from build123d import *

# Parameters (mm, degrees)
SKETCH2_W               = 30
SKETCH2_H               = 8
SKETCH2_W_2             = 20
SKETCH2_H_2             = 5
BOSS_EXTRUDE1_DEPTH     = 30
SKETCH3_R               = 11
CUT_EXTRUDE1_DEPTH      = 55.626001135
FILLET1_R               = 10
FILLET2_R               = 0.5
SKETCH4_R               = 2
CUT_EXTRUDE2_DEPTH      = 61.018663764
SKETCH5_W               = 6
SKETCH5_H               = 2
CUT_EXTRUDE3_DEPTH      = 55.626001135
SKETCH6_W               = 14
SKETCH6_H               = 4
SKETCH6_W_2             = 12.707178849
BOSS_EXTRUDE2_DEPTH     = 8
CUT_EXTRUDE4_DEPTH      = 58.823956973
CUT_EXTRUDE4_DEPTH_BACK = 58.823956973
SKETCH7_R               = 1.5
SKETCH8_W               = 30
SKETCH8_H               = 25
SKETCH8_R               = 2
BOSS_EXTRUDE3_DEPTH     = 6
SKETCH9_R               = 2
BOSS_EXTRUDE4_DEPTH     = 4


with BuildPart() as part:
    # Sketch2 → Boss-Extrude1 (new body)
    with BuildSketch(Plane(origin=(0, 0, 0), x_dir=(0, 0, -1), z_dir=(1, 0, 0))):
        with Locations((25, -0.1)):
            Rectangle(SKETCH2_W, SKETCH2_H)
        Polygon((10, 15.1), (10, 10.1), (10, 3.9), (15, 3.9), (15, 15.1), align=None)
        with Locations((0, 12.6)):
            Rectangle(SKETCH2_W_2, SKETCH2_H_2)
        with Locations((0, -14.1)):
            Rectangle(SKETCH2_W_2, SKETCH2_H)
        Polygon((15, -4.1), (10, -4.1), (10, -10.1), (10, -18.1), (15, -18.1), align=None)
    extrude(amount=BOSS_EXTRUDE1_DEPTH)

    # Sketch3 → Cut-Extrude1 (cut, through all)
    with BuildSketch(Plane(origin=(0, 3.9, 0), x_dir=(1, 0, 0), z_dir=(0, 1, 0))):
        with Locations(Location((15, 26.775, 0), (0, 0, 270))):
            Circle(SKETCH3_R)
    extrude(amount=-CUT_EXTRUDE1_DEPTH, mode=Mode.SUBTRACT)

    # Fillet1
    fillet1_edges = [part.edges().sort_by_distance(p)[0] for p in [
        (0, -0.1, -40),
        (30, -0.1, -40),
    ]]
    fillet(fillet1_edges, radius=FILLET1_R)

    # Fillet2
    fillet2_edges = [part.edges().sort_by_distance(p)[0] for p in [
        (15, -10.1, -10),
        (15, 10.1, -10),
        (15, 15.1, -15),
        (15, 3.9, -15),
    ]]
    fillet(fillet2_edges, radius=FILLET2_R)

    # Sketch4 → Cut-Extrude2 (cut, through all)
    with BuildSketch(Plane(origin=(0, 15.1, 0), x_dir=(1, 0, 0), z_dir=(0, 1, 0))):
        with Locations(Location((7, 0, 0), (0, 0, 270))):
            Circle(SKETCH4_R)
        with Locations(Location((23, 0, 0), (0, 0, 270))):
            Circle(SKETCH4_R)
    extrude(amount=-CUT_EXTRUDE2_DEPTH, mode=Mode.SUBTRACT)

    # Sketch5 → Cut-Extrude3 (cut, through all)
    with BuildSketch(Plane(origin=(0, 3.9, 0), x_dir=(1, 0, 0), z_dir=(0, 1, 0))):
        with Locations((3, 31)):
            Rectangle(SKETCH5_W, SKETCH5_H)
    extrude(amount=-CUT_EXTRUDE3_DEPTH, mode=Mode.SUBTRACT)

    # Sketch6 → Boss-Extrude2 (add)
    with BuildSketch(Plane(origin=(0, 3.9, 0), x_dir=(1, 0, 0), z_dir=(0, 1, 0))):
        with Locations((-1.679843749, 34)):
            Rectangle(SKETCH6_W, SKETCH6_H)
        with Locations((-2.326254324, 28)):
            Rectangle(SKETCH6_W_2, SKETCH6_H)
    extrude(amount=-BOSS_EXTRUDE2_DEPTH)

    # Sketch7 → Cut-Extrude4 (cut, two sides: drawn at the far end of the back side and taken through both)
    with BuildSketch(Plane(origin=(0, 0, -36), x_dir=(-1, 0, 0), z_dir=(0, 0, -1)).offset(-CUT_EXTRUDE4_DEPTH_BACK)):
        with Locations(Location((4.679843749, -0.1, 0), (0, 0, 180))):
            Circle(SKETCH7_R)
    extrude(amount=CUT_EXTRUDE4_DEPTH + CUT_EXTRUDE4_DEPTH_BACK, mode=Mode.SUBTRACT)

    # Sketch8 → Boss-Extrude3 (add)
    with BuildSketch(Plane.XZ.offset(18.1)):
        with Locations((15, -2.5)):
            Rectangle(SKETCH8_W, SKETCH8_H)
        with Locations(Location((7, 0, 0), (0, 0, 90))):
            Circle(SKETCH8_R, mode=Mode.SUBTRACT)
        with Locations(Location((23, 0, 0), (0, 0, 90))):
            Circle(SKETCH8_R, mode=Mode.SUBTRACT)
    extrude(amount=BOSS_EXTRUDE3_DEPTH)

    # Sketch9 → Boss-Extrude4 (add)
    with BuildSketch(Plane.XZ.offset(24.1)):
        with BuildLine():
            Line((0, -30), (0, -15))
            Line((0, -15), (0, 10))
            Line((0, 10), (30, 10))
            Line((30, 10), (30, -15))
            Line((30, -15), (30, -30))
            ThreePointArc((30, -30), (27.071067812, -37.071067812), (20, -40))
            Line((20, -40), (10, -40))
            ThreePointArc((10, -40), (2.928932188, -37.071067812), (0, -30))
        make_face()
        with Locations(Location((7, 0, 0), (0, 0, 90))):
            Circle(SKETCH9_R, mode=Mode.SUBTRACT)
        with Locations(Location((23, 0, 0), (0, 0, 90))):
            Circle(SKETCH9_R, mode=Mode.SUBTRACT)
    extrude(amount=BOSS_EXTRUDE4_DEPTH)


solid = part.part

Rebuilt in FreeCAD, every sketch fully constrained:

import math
import FreeCAD as App
import Part
import Sketcher
from FreeCAD import Vector


def edges_at(feature, points):
    """Names of the edges that pass closest to the given points."""
    edges = feature.Shape.Edges
    near = lambda p: min(range(len(edges)), key=lambda i: edges[i].distToShape(Part.Vertex(*p))[0])
    return sorted({f"Edge{near(p) + 1}" for p in points})

doc = App.newDocument("Part")
body = doc.addObject("PartDesign::Body", "Body")

# Sketch on YZ plane
sketch1 = body.newObject("Sketcher::SketchObject", "Sketch")
sketch1.AttachmentSupport = (doc.getObject("YZ_Plane"), [""])
sketch1.MapMode = "FlatFace"
sketch1.addGeometry([
    Part.LineSegment(Vector(-4.1, -15, 0), Vector(-4.1, -40, 0)),  # 0
    Part.LineSegment(Vector(-4.1, -40, 0), Vector(3.9, -40, 0)),  # 1
    Part.LineSegment(Vector(3.9, -40, 0), Vector(3.9, -15, 0)),  # 2
    Part.LineSegment(Vector(3.9, -15, 0), Vector(15.1, -15, 0)),  # 3
    Part.LineSegment(Vector(15.1, -15, 0), Vector(15.1, 10, 0)),  # 4
    Part.LineSegment(Vector(15.1, 10, 0), Vector(10.1, 10, 0)),  # 5
    Part.LineSegment(Vector(10.1, 10, 0), Vector(10.1, -10, 0)),  # 6
    Part.LineSegment(Vector(10.1, -10, 0), Vector(-10.1, -10, 0)),  # 7
    Part.LineSegment(Vector(-10.1, -10, 0), Vector(-10.1, 10, 0)),  # 8
    Part.LineSegment(Vector(-10.1, 10, 0), Vector(-18.1, 10, 0)),  # 9
    Part.LineSegment(Vector(-18.1, 10, 0), Vector(-18.1, -15, 0)),  # 10
    Part.LineSegment(Vector(-18.1, -15, 0), Vector(-4.1, -15, 0)),  # 11
], False)
sketch1.addConstraint([
    Sketcher.Constraint("Coincident", 0, 2, 1, 1),
    Sketcher.Constraint("Coincident", 1, 2, 2, 1),
    Sketcher.Constraint("Coincident", 2, 2, 3, 1),
    Sketcher.Constraint("Coincident", 3, 2, 4, 1),
    Sketcher.Constraint("Coincident", 4, 2, 5, 1),
    Sketcher.Constraint("Coincident", 5, 2, 6, 1),
    Sketcher.Constraint("Coincident", 6, 2, 7, 1),
    Sketcher.Constraint("Coincident", 7, 2, 8, 1),
    Sketcher.Constraint("Coincident", 8, 2, 9, 1),
    Sketcher.Constraint("Coincident", 9, 2, 10, 1),
    Sketcher.Constraint("Coincident", 10, 2, 11, 1),
    Sketcher.Constraint("Coincident", 11, 2, 0, 1),
    Sketcher.Constraint("Vertical", 0),
    Sketcher.Constraint("Horizontal", 1),
    Sketcher.Constraint("Vertical", 2),
    Sketcher.Constraint("Horizontal", 3),
    Sketcher.Constraint("Vertical", 4),
    Sketcher.Constraint("Horizontal", 5),
    Sketcher.Constraint("Vertical", 6),
    Sketcher.Constraint("Horizontal", 7),
    Sketcher.Constraint("Vertical", 8),
    Sketcher.Constraint("Horizontal", 9),
    Sketcher.Constraint("Vertical", 10),
    Sketcher.Constraint("Horizontal", 11),
    Sketcher.Constraint("Symmetric", 5, 2, 7, 2, -1, 1),
    Sketcher.Constraint("Horizontal", 5, 2, 8, 2),
    Sketcher.Constraint("Horizontal", 3, 2, 10, 2),
    Sketcher.Constraint("Equal", 1, 9),
    Sketcher.Constraint("Equal", 2, 4),
    Sketcher.Constraint("DistanceX", 1, 1, 1, 2, 8.0),
    Sketcher.Constraint("DistanceX", 5, 2, 5, 1, 5.0),
    Sketcher.Constraint("DistanceX", 11, 1, 11, 2, 14.0),
    Sketcher.Constraint("DistanceY", 0, 2, 0, 1, 25.0),
    Sketcher.Constraint("DistanceY", 6, 2, 6, 1, 20.0),
    Sketcher.Constraint("DistanceX", 3, 1, 3, 2, 11.2),
])
pad1 = body.newObject("PartDesign::Pad", "Pad")
pad1.Profile = sketch1
pad1.Length = 30

# Sketch on XZ plane
sketch2 = body.newObject("Sketcher::SketchObject", "Sketch001")
sketch2.AttachmentSupport = (doc.getObject("XZ_Plane"), [""])
sketch2.MapMode = "FlatFace"
sketch2.AttachmentOffset = App.Placement(Vector(0, 0, -3.9), App.Rotation())
sketch2.addGeometry(Part.Circle(Vector(15, -26.775, 0), Vector(0, 0, 1), 11), False)
sketch2.addConstraint([
    Sketcher.Constraint("Diameter", 0, 22.0),
    Sketcher.Constraint("DistanceX", -1, 1, 0, 3, 15.0),
    Sketcher.Constraint("DistanceY", 0, 3, -1, 1, 26.775),
])
pocket1 = body.newObject("PartDesign::Pocket", "Pocket")
pocket1.Profile = sketch2
pocket1.Type = "ThroughAll"
pocket1.Reversed = True
doc.recompute()

fillet = body.newObject("PartDesign::Fillet", "Fillet")
fillet.Base = (pocket1, edges_at(pocket1, [(0, -0.1, -40), (30, -0.1, -40)]))
fillet.Radius = 10
doc.recompute()

fillet2 = body.newObject("PartDesign::Fillet", "Fillet001")
fillet2.Base = (fillet, edges_at(fillet, [
    (15, -10.1, -10),
    (15, 10.1, -10),
    (15, 15.1, -15),
    (15, 3.9, -15),
]))
fillet2.Radius = 0.5

# Sketch on XZ plane
sketch3 = body.newObject("Sketcher::SketchObject", "Sketch002")
sketch3.AttachmentSupport = (doc.getObject("XZ_Plane"), [""])
sketch3.MapMode = "FlatFace"
sketch3.AttachmentOffset = App.Placement(Vector(0, 0, -15.1), App.Rotation())
sketch3.addGeometry([
    Part.Circle(Vector(7, 0, 0), Vector(0, 0, 1), 2),
    Part.Circle(Vector(23, 0, 0), Vector(0, 0, 1), 2),
], False)
sketch3.addConstraint([
    Sketcher.Constraint("Equal", 0, 1),
    Sketcher.Constraint("PointOnObject", 0, 3, -1),
    Sketcher.Constraint("PointOnObject", 1, 3, -1),
    Sketcher.Constraint("Diameter", 0, 4.0),
    Sketcher.Constraint("DistanceX", -1, 1, 0, 3, 7.0),
    Sketcher.Constraint("DistanceX", -1, 1, 1, 3, 23.0),
])
pocket2 = body.newObject("PartDesign::Pocket", "Pocket001")
pocket2.Profile = sketch3
pocket2.Type = "ThroughAll"
pocket2.Reversed = True

# Sketch on XZ plane
sketch4 = body.newObject("Sketcher::SketchObject", "Sketch003")
sketch4.AttachmentSupport = (doc.getObject("XZ_Plane"), [""])
sketch4.MapMode = "FlatFace"
sketch4.AttachmentOffset = App.Placement(Vector(0, 0, -3.9), App.Rotation())
sketch4.addGeometry([
    Part.LineSegment(Vector(0, -32, 0), Vector(0, -30, 0)),
    Part.LineSegment(Vector(0, -30, 0), Vector(6, -30, 0)),
    Part.LineSegment(Vector(6, -30, 0), Vector(6, -32, 0)),
    Part.LineSegment(Vector(6, -32, 0), Vector(0, -32, 0)),
], False)
sketch4.addConstraint([
    Sketcher.Constraint("Coincident", 0, 2, 1, 1),
    Sketcher.Constraint("Coincident", 1, 2, 2, 1),
    Sketcher.Constraint("Coincident", 2, 2, 3, 1),
    Sketcher.Constraint("Coincident", 3, 2, 0, 1),
    Sketcher.Constraint("Vertical", 0),
    Sketcher.Constraint("Horizontal", 1),
    Sketcher.Constraint("Vertical", 2),
    Sketcher.Constraint("Horizontal", 3),
    Sketcher.Constraint("PointOnObject", 0, 2, -2),
    Sketcher.Constraint("DistanceX", 1, 1, 1, 2, 6.0),
    Sketcher.Constraint("DistanceY", 0, 1, 0, 2, 2.0),
    Sketcher.Constraint("DistanceY", 0, 2, -1, 1, 30.0),
])
pocket3 = body.newObject("PartDesign::Pocket", "Pocket002")
pocket3.Profile = sketch4
pocket3.Type = "ThroughAll"
pocket3.Reversed = True

# Sketch on XZ plane
sketch5 = body.newObject("Sketcher::SketchObject", "Sketch004")
sketch5.AttachmentSupport = (doc.getObject("XZ_Plane"), [""])
sketch5.MapMode = "FlatFace"
sketch5.AttachmentOffset = App.Placement(Vector(0, 0, -3.9), App.Rotation())
sketch5.addGeometry([
    Part.LineSegment(Vector(-8.679844, -36, 0), Vector(-8.679844, -32, 0)),  # 0
    Part.LineSegment(Vector(-8.679844, -32, 0), Vector(5.320156, -32, 0)),  # 1
    Part.LineSegment(Vector(5.320156, -32, 0), Vector(5.320156, -36, 0)),  # 2
    Part.LineSegment(Vector(5.320156, -36, 0), Vector(-8.679844, -36, 0)),  # 3
    Part.LineSegment(Vector(-8.679844, -30, 0), Vector(-8.679844, -26, 0)),  # 4
    Part.LineSegment(Vector(-8.679844, -26, 0), Vector(4.027335, -26, 0)),  # 5
    Part.LineSegment(Vector(4.027335, -26, 0), Vector(4.027335, -30, 0)),  # 6
    Part.LineSegment(Vector(4.027335, -30, 0), Vector(-8.679844, -30, 0)),  # 7
], False)
sketch5.addConstraint([
    Sketcher.Constraint("Coincident", 0, 2, 1, 1),
    Sketcher.Constraint("Coincident", 1, 2, 2, 1),
    Sketcher.Constraint("Coincident", 2, 2, 3, 1),
    Sketcher.Constraint("Coincident", 3, 2, 0, 1),
    Sketcher.Constraint("Coincident", 4, 2, 5, 1),
    Sketcher.Constraint("Coincident", 5, 2, 6, 1),
    Sketcher.Constraint("Coincident", 6, 2, 7, 1),
    Sketcher.Constraint("Coincident", 7, 2, 4, 1),
    Sketcher.Constraint("Vertical", 0),
    Sketcher.Constraint("Horizontal", 1),
    Sketcher.Constraint("Vertical", 2),
    Sketcher.Constraint("Horizontal", 3),
    Sketcher.Constraint("Vertical", 4),
    Sketcher.Constraint("Horizontal", 5),
    Sketcher.Constraint("Vertical", 6),
    Sketcher.Constraint("Horizontal", 7),
    Sketcher.Constraint("Vertical", 3, 2, 4, 2),
    Sketcher.Constraint("Equal", 2, 4),
    Sketcher.Constraint("DistanceX", 1, 1, 1, 2, 14.0),
    Sketcher.Constraint("DistanceY", 0, 1, 0, 2, 4.0),
    Sketcher.Constraint("DistanceY", 0, 2, -1, 1, 32.0),
    Sketcher.Constraint("DistanceY", 4, 2, -1, 1, 26.0),
    Sketcher.Constraint("DistanceX", 5, 1, 5, 2, 12.707179),
    Sketcher.Constraint("DistanceX", 0, 2, -1, 1, 8.679844),
])
pad2 = body.newObject("PartDesign::Pad", "Pad001")
pad2.Profile = sketch5
pad2.Length = 8

# Sketch on XY plane
sketch6 = body.newObject("Sketcher::SketchObject", "Sketch005")
sketch6.AttachmentSupport = (doc.getObject("XY_Plane"), [""])
sketch6.MapMode = "FlatFace"
sketch6.AttachmentOffset = App.Placement(Vector(0, 0, -36), App.Rotation())
sketch6.addGeometry(Part.Circle(Vector(-4.679844, -0.1, 0), Vector(0, 0, 1), 1.5), False)
sketch6.addConstraint([
    Sketcher.Constraint("Diameter", 0, 3.0),
    Sketcher.Constraint("DistanceY", 0, 3, -1, 1, 0.1),
    Sketcher.Constraint("DistanceX", 0, 3, -1, 1, 4.679844),
])
pocket4 = body.newObject("PartDesign::Pocket", "Pocket003")
pocket4.Profile = sketch6
pocket4.Type = "ThroughAll"
pocket4.Midplane = True

# Sketch on XZ plane
sketch7 = body.newObject("Sketcher::SketchObject", "Sketch006")
sketch7.AttachmentSupport = (doc.getObject("XZ_Plane"), [""])
sketch7.MapMode = "FlatFace"
sketch7.AttachmentOffset = App.Placement(Vector(0, 0, 18.1), App.Rotation())
sketch7.addGeometry([
    Part.LineSegment(Vector(0, 10, 0), Vector(0, -15, 0)),  # 0
    Part.LineSegment(Vector(0, -15, 0), Vector(30, -15, 0)),  # 1
    Part.LineSegment(Vector(30, -15, 0), Vector(30, 10, 0)),  # 2
    Part.LineSegment(Vector(30, 10, 0), Vector(0, 10, 0)),  # 3
    Part.Circle(Vector(7, 0, 0), Vector(0, 0, 1), 2),  # 4
    Part.Circle(Vector(23, 0, 0), Vector(0, 0, 1), 2),  # 5
], False)
sketch7.addConstraint([
    Sketcher.Constraint("Coincident", 0, 2, 1, 1),
    Sketcher.Constraint("Coincident", 1, 2, 2, 1),
    Sketcher.Constraint("Coincident", 2, 2, 3, 1),
    Sketcher.Constraint("Coincident", 3, 2, 0, 1),
    Sketcher.Constraint("Vertical", 0),
    Sketcher.Constraint("Horizontal", 1),
    Sketcher.Constraint("Vertical", 2),
    Sketcher.Constraint("Horizontal", 3),
    Sketcher.Constraint("Equal", 4, 5),
    Sketcher.Constraint("PointOnObject", 4, 3, -1),
    Sketcher.Constraint("PointOnObject", 5, 3, -1),
    Sketcher.Constraint("PointOnObject", 0, 2, -2),
    Sketcher.Constraint("Diameter", 4, 4.0),
    Sketcher.Constraint("DistanceX", 1, 1, 1, 2, 30.0),
    Sketcher.Constraint("DistanceY", 0, 2, 0, 1, 25.0),
    Sketcher.Constraint("DistanceX", -1, 1, 4, 3, 7.0),
    Sketcher.Constraint("DistanceX", -1, 1, 5, 3, 23.0),
    Sketcher.Constraint("DistanceY", 0, 2, -1, 1, 15.0),
])
pad3 = body.newObject("PartDesign::Pad", "Pad002")
pad3.Profile = sketch7
pad3.Length = 6

# Sketch on XZ plane
sketch8 = body.newObject("Sketcher::SketchObject", "Sketch007")
sketch8.AttachmentSupport = (doc.getObject("XZ_Plane"), [""])
sketch8.MapMode = "FlatFace"
sketch8.AttachmentOffset = App.Placement(Vector(0, 0, 24.1), App.Rotation())
sketch8.addGeometry([
    Part.LineSegment(Vector(0, 10, 0), Vector(0, -30, 0)),  # 0
    Part.ArcOfCircle(Part.Circle(Vector(10, -30, 0), Vector(0, 0, 1), 10), math.radians(180), math.radians(270)),  # 1
    Part.LineSegment(Vector(10, -40, 0), Vector(20, -40, 0)),  # 2
    Part.ArcOfCircle(Part.Circle(Vector(20, -30, 0), Vector(0, 0, 1), 10), math.radians(-90), math.radians(0)),  # 3
    Part.LineSegment(Vector(30, -30, 0), Vector(30, 10, 0)),  # 4
    Part.LineSegment(Vector(30, 10, 0), Vector(0, 10, 0)),  # 5
    Part.Circle(Vector(23, 0, 0), Vector(0, 0, 1), 2),  # 6
    Part.Circle(Vector(7, 0, 0), Vector(0, 0, 1), 2),  # 7
], False)
sketch8.addConstraint([
    Sketcher.Constraint("Tangent", 0, 2, 1, 1),
    Sketcher.Constraint("Tangent", 1, 2, 2, 1),
    Sketcher.Constraint("Tangent", 2, 2, 3, 1),
    Sketcher.Constraint("Tangent", 3, 2, 4, 1),
    Sketcher.Constraint("Coincident", 4, 2, 5, 1),
    Sketcher.Constraint("Coincident", 5, 2, 0, 1),
    Sketcher.Constraint("Vertical", 0),
    Sketcher.Constraint("Horizontal", 2),
    Sketcher.Constraint("Vertical", 4),
    Sketcher.Constraint("Horizontal", 5),
    Sketcher.Constraint("Equal", 1, 3),
    Sketcher.Constraint("Equal", 6, 7),
    Sketcher.Constraint("PointOnObject", 6, 3, -1),
    Sketcher.Constraint("PointOnObject", 7, 3, -1),
    Sketcher.Constraint("PointOnObject", 0, 2, -2),
    Sketcher.Constraint("Diameter", 6, 4.0),
    Sketcher.Constraint("Radius", 1, 10.0),
    Sketcher.Constraint("DistanceX", 2, 1, 2, 2, 10.0),
    Sketcher.Constraint("DistanceY", 0, 2, 0, 1, 40.0),
    Sketcher.Constraint("DistanceY", 1, 3, -1, 1, 30.0),
    Sketcher.Constraint("DistanceX", -1, 1, 6, 3, 23.0),
    Sketcher.Constraint("DistanceX", -1, 1, 7, 3, 7.0),
])
pad4 = body.newObject("PartDesign::Pad", "Pad003")
pad4.Profile = sketch8
pad4.Length = 4

doc.recompute()
